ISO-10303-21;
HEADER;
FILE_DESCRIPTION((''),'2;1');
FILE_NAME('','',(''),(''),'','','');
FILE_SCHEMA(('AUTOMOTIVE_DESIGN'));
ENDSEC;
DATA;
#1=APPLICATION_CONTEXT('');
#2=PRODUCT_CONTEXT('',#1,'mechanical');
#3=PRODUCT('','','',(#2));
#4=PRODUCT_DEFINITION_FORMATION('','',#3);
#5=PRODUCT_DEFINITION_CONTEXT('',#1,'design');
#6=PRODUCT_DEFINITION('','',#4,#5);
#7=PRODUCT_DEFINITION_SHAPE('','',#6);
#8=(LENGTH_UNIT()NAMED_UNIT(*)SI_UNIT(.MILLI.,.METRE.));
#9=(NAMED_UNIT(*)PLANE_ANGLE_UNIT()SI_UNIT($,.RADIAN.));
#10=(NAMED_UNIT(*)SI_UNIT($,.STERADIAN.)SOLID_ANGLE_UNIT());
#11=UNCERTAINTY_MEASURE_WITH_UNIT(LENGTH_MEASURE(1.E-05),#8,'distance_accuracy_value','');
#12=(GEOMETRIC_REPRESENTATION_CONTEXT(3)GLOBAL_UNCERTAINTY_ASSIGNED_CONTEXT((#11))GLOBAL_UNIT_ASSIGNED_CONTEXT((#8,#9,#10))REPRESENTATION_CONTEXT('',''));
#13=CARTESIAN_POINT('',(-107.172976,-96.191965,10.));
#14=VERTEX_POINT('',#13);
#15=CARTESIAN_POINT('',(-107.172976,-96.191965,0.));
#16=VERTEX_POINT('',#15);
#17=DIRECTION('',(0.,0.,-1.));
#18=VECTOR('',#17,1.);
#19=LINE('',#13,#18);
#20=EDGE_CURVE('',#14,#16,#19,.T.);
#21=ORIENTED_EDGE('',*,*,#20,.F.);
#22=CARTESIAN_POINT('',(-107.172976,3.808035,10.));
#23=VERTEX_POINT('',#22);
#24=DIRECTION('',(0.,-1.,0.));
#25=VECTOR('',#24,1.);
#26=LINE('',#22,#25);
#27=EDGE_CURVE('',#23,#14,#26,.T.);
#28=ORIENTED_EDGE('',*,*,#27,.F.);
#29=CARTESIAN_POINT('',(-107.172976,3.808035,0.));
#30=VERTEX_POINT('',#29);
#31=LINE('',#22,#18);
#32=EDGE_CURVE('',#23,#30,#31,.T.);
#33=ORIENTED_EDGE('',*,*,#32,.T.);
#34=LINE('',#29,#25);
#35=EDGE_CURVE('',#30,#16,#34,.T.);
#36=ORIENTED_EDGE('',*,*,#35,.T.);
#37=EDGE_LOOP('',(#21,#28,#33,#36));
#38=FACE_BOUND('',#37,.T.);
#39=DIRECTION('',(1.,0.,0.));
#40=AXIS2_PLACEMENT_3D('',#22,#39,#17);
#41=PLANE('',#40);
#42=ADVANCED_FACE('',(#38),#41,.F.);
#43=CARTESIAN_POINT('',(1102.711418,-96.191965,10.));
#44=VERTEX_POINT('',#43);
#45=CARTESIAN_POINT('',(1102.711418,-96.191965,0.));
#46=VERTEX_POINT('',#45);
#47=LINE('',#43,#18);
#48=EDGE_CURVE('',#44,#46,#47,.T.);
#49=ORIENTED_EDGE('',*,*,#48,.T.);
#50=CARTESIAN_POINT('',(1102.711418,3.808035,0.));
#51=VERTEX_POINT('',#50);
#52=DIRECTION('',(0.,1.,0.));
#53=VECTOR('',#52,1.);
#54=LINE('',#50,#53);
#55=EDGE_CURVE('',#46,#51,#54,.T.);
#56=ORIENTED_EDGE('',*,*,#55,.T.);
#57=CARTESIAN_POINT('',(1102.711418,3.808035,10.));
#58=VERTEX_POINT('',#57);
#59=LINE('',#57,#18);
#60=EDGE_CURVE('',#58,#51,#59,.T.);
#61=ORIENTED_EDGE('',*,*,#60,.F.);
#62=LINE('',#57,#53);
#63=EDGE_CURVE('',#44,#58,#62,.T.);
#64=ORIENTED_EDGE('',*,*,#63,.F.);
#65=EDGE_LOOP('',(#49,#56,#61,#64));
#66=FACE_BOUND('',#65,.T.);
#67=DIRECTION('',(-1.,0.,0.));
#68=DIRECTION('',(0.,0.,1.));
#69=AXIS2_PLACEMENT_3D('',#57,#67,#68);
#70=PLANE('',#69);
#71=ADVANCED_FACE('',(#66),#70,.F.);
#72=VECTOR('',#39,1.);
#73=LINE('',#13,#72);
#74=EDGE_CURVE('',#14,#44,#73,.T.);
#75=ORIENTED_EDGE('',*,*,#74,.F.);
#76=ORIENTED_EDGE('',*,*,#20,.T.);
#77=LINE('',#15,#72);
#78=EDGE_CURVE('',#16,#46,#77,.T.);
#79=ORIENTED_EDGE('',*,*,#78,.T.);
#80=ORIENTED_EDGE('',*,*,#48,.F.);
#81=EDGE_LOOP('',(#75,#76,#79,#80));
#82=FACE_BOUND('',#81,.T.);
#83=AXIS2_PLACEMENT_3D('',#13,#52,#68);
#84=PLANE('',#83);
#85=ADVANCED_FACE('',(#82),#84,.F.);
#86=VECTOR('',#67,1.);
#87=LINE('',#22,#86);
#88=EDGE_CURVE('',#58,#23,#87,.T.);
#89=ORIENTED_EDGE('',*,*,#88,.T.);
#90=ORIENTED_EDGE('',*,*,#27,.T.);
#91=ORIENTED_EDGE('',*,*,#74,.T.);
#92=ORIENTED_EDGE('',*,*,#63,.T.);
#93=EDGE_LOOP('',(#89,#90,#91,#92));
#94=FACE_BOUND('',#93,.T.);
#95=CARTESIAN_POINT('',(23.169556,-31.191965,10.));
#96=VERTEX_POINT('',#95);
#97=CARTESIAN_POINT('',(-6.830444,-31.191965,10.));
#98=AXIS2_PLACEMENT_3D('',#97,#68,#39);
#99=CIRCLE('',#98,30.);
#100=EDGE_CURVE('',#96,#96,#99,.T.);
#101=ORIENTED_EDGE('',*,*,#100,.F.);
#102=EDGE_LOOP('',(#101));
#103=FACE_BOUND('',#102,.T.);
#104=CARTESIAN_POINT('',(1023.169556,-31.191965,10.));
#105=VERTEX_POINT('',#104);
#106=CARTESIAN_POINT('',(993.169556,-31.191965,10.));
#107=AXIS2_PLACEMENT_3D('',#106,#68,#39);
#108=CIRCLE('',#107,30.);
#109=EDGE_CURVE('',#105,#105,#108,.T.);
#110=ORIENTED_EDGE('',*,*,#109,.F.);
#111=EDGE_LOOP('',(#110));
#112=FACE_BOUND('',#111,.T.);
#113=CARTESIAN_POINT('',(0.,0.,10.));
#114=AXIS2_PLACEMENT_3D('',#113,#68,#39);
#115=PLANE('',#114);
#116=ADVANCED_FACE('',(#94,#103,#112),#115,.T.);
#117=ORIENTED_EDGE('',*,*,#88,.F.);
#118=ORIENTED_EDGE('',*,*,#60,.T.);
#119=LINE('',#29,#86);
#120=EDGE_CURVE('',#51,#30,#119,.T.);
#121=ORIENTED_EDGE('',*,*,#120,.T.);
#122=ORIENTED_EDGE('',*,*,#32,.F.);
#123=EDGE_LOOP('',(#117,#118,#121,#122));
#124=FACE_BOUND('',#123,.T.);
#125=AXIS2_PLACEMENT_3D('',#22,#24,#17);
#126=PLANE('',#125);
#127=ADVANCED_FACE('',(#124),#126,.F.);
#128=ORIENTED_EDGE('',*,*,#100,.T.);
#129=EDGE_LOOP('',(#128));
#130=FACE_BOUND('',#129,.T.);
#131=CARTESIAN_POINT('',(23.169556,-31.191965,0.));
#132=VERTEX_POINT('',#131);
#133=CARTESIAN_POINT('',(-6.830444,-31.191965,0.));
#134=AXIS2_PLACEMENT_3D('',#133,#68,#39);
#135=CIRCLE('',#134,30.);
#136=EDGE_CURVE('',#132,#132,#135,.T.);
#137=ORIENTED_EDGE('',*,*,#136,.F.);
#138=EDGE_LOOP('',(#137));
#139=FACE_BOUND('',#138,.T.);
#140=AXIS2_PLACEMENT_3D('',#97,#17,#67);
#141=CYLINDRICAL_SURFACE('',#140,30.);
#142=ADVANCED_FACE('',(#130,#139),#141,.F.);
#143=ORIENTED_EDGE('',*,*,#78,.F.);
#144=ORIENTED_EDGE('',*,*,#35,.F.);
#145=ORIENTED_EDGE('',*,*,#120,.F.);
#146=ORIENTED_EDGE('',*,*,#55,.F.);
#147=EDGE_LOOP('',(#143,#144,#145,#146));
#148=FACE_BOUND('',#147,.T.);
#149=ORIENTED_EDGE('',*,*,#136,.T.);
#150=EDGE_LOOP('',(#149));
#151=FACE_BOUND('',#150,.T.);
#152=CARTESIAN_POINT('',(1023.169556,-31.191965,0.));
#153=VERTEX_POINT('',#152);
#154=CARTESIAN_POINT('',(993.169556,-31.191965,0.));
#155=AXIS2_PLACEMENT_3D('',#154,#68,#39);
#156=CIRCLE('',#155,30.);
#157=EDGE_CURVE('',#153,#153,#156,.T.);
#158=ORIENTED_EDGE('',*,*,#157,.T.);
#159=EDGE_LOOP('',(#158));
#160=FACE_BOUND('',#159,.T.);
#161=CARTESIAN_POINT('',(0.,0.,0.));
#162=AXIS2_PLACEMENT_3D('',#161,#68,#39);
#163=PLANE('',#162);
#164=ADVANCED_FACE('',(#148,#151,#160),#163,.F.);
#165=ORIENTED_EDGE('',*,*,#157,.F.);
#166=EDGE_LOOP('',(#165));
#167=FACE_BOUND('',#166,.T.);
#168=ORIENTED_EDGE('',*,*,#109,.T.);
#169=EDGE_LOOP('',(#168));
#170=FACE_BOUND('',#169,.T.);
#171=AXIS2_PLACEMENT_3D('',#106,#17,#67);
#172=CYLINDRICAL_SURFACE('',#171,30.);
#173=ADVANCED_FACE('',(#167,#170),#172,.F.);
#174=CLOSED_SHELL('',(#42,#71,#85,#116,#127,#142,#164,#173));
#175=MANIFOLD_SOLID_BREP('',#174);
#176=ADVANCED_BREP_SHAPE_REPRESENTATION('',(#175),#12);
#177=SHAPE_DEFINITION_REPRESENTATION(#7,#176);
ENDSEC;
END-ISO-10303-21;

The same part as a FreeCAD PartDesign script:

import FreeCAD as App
import Part
import Sketcher
Q = App.Units.Quantity

doc = App.newDocument("Part")
body = doc.addObject("PartDesign::Body", "Body")

# Sketch on XY plane
sketch1 = body.newObject("Sketcher::SketchObject", "Sketch")
sketch1.AttachmentSupport = (doc.getObject("XY_Plane"), [""])
sketch1.MapMode = "FlatFace"
sketch1.addGeometry([
    Part.LineSegment(App.Vector(-107.172976, 3.808035, 0), App.Vector(-107.172976, -96.191965, 0)),  # 0
    Part.LineSegment(App.Vector(-107.172976, -96.191965, 0), App.Vector(1102.711418, -96.191965, 0)),  # 1
    Part.LineSegment(App.Vector(1102.711418, -96.191965, 0), App.Vector(1102.711418, 3.808035, 0)),  # 2
    Part.LineSegment(App.Vector(1102.711418, 3.808035, 0), App.Vector(-107.172976, 3.808035, 0)),  # 3
    Part.Circle(App.Vector(-6.830444, -31.191965, 0), App.Vector(0, 0, 1), 30),  # 4
    Part.Circle(App.Vector(993.169556, -31.191965, 0), App.Vector(0, 0, 1), 30),  # 5
], False)
sketch1.addConstraint([
    Sketcher.Constraint("Coincident", 0, 2, 1, 1),
    Sketcher.Constraint("Coincident", 1, 2, 2, 1),
    Sketcher.Constraint("Coincident", 2, 2, 3, 1),
    Sketcher.Constraint("Coincident", 3, 2, 0, 1),
    Sketcher.Constraint("Vertical", 0),
    Sketcher.Constraint("Horizontal", 1),
    Sketcher.Constraint("Vertical", 2),
    Sketcher.Constraint("Horizontal", 3),
    Sketcher.Constraint("Equal", 4, 5),
    Sketcher.Constraint("Horizontal", 4, 3, 5, 3),
    Sketcher.Constraint("Diameter", 4, Q("60 mm")),
    Sketcher.Constraint("DistanceY", 0, 2, 0, 1, Q("100 mm")),
    Sketcher.Constraint("DistanceX", 4, 3, 5, 3, Q("1000 mm")),
    Sketcher.Constraint("DistanceY", 0, 2, 4, 3, Q("65 mm")),
    Sketcher.Constraint("DistanceX", 1, 1, 1, 2, Q("1209.884394 mm")),
    Sketcher.Constraint("DistanceX", -1, 1, 1, 2, Q("1102.711418 mm")),
    Sketcher.Constraint("DistanceX", 0, 2, 4, 3, Q("100.342532 mm")),
    Sketcher.Constraint("DistanceY", 4, 3, -1, 1, Q("31.191965 mm")),
])
pad1 = body.newObject("PartDesign::Pad", "Pad")
pad1.Profile = sketch1
pad1.Length = 10

doc.recompute()
